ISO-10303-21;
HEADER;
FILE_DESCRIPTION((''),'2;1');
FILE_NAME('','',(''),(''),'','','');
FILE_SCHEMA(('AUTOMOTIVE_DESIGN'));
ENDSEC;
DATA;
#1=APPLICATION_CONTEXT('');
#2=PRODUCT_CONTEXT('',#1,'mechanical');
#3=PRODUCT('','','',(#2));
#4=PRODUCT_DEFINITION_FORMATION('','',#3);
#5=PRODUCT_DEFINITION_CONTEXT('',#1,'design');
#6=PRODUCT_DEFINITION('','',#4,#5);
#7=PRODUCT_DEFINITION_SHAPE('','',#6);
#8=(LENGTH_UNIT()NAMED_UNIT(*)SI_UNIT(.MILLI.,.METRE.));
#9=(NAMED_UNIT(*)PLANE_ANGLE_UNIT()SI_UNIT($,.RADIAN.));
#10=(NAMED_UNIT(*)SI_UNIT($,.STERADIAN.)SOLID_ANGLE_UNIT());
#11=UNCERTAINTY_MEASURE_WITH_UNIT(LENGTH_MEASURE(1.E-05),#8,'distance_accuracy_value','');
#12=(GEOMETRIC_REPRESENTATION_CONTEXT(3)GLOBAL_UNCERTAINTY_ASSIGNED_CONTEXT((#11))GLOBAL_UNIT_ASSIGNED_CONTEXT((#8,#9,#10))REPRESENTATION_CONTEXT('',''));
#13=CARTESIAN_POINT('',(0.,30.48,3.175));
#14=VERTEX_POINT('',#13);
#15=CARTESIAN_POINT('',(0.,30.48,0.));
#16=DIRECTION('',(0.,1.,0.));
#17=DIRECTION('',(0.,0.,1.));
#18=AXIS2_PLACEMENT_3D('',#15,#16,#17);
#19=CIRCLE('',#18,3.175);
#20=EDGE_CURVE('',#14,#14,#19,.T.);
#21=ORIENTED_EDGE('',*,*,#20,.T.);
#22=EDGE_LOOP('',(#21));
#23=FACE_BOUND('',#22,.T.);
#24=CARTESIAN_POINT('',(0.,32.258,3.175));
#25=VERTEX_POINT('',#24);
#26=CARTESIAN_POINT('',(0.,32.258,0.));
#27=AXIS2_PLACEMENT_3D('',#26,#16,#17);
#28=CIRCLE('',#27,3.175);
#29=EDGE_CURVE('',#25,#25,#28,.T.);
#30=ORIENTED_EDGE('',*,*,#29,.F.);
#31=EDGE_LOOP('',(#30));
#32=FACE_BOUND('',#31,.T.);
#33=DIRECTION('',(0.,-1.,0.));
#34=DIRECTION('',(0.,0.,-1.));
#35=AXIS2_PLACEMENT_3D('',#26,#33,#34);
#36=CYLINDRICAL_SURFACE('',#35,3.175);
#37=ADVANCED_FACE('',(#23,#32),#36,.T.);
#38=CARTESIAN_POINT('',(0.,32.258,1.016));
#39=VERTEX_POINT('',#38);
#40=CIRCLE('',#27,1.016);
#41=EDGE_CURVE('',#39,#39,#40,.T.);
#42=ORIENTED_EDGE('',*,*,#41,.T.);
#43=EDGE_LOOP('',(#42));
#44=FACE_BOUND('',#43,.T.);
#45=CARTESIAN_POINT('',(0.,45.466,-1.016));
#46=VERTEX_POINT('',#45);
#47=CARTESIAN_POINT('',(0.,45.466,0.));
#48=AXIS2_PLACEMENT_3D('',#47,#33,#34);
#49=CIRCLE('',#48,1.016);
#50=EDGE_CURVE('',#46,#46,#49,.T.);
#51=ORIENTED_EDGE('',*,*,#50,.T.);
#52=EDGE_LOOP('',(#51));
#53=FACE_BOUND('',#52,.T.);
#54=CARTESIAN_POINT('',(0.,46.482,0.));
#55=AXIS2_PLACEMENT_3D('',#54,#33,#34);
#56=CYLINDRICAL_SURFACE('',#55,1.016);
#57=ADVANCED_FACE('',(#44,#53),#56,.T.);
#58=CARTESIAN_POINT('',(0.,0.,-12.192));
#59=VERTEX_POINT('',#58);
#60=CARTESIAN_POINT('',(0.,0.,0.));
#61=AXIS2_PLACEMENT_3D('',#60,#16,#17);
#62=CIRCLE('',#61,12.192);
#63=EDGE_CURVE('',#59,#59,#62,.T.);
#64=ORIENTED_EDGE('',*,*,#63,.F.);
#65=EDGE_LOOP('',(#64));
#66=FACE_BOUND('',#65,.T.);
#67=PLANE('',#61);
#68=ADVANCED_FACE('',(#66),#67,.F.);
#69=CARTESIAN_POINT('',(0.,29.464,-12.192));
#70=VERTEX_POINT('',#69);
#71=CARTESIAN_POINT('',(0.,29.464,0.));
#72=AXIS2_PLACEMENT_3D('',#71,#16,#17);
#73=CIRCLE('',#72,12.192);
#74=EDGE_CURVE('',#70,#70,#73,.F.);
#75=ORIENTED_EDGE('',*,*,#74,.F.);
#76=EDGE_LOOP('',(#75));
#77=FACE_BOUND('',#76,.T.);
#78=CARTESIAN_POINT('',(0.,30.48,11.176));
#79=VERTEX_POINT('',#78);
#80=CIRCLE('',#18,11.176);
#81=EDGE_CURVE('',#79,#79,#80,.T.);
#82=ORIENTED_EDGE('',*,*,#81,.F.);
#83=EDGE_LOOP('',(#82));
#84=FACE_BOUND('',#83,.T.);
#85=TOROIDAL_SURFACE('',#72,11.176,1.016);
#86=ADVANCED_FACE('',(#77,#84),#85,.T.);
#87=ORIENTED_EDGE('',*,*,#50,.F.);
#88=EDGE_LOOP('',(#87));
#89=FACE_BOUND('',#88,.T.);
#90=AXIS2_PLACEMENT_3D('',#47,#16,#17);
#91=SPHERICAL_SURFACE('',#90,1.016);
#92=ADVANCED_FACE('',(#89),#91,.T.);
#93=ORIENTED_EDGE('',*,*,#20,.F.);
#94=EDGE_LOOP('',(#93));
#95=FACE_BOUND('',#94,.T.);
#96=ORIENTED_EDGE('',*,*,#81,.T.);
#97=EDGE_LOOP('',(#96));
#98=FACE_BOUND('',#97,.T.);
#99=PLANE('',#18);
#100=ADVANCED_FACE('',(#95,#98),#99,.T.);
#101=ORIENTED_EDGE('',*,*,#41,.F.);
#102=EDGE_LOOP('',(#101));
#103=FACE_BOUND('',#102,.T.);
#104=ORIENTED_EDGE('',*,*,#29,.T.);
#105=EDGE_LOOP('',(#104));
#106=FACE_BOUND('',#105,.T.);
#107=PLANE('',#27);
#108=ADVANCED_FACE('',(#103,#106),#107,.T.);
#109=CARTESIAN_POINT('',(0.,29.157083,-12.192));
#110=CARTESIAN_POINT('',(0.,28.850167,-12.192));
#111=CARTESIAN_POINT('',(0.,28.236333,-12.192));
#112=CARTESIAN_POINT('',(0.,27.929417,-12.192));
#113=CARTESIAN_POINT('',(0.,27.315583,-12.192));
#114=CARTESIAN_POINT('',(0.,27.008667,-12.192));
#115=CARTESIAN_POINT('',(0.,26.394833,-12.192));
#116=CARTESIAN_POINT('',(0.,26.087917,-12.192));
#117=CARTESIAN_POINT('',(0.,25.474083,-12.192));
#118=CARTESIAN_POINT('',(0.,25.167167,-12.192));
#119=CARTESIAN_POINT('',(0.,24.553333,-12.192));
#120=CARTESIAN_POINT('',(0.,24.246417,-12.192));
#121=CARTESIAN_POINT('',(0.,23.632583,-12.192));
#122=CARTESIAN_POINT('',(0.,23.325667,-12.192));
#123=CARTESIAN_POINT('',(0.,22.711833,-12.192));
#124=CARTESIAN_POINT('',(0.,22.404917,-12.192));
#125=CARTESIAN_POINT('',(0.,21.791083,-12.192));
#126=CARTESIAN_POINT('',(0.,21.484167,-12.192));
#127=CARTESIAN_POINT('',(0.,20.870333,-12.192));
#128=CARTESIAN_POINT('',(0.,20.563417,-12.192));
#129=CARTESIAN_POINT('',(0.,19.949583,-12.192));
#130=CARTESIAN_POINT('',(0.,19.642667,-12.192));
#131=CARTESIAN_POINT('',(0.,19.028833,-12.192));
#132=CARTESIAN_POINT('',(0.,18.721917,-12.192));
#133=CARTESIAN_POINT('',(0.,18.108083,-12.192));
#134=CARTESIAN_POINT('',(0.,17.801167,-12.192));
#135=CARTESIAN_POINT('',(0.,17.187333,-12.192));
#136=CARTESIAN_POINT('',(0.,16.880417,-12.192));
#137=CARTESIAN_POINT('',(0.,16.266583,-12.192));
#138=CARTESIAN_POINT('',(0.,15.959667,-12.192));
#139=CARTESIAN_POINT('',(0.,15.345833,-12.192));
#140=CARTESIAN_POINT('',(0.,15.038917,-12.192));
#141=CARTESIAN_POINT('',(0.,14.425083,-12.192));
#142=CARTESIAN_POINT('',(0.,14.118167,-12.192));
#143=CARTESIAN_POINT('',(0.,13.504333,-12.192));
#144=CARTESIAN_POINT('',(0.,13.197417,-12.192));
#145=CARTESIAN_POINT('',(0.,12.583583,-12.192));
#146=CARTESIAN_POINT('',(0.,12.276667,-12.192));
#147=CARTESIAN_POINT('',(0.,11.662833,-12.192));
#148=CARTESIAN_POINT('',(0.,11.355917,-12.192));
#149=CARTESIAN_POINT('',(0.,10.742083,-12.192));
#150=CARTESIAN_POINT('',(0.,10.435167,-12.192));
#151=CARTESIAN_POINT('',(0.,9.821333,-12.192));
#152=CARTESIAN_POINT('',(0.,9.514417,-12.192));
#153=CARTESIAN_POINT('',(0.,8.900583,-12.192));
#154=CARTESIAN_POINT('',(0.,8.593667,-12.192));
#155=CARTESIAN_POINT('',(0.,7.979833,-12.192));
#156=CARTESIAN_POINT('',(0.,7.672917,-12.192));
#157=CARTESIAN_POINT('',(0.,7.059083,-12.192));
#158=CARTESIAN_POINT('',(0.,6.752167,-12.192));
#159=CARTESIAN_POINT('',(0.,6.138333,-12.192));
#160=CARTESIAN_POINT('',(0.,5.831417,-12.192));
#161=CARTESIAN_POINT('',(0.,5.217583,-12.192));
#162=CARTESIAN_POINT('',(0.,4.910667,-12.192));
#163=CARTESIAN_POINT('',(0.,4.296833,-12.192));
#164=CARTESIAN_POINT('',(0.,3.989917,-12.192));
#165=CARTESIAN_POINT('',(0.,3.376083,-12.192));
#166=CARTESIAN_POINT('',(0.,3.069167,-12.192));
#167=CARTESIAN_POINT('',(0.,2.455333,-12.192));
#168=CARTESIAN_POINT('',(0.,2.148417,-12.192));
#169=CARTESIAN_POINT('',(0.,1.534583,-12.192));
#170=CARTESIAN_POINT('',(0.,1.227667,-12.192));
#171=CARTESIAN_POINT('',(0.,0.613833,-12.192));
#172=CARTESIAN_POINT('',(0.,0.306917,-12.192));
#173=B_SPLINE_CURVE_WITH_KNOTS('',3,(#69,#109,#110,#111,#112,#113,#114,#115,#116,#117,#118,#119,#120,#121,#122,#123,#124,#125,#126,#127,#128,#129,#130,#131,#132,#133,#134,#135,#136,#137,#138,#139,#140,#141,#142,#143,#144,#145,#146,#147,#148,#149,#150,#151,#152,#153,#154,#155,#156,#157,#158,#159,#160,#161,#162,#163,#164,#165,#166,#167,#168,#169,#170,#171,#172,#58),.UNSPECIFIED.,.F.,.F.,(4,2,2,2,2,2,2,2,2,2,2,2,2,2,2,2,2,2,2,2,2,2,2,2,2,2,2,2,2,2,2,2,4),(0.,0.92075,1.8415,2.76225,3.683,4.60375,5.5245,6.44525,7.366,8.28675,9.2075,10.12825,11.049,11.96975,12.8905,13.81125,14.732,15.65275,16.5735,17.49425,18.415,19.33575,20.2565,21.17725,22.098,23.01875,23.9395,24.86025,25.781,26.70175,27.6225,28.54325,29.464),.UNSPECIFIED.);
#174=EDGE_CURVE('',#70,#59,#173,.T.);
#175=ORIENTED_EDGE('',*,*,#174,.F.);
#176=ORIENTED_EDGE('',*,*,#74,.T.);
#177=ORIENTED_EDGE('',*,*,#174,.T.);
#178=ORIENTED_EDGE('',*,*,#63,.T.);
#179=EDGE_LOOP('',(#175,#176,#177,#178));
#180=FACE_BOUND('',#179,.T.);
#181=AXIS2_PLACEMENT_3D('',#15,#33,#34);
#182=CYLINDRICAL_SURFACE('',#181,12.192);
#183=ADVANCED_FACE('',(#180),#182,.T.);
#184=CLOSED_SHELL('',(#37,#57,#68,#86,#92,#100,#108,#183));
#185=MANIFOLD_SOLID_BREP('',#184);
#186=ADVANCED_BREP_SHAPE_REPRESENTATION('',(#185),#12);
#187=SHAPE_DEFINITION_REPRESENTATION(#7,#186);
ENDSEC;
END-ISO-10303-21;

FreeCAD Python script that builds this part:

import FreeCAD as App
import Part
import Sketcher

V = App.Vector
Q = App.Units.Quantity


def edges_at(feature, points):
    """Names of the edges that pass closest to the given points."""
    edges = feature.Shape.Edges
    near = lambda p: min(range(len(edges)), key=lambda i: edges[i].distToShape(Part.Vertex(*p))[0])
    return sorted({f"Edge{near(p) + 1}" for p in points})

doc = App.newDocument("Part")
params = doc.addObject("Spreadsheet::Sheet", "Params")
for row, (alias, value) in enumerate([
    ("sketch1_diameter", "0.96 in"),
    ("pad1_length", "1.2 in"),
    ("sketch2_diameter", "0.25 in"),
    ("pad2_length", "0.07 in"),
    ("sketch3_diameter", "0.08 in"),
    ("pad3_length", "0.56 in"),
    ("fillet_radius", "0.04 in"),
    ("fillet2_radius", "0.04 in"),
], start=1):
    params.set(f"A{row}", alias)
    params.set(f"B{row}", "=" + value)
    params.setAlias(f"B{row}", alias)

body = doc.addObject("PartDesign::Body", "Body")

sketch1 = body.newObject("Sketcher::SketchObject", "Sketch")
sketch1.AttachmentSupport = (doc.getObject("XZ_Plane"), [""])
sketch1.MapMode = "FlatFace"
sketch1.addGeometry(Part.Circle(V(0, 0, 0), V(0, 0, 1), 12), False)
sketch1.addConstraint([
    Sketcher.Constraint("Coincident", 0, 3, -1, 1),
    Sketcher.Constraint("Diameter", 0, Q("0.96 in")),
])
sketch1.setExpression("Constraints[1]", "Params.sketch1_diameter")
pad1 = body.newObject("PartDesign::Pad", "Pad")
pad1.Profile = sketch1
pad1.setExpression("Length", "Params.pad1_length")
pad1.Reversed = True

sketch2 = body.newObject("Sketcher::SketchObject", "Sketch001")
sketch2.AttachmentSupport = (doc.getObject("XZ_Plane"), [""])
sketch2.MapMode = "FlatFace"
sketch2.AttachmentOffset = App.Placement(V(0, 0, -1.2 * 25.4), App.Rotation())
sketch2.addGeometry(Part.Circle(V(0, 0, 0), V(0, 0, 1), 3.2), False)
sketch2.addConstraint([
    Sketcher.Constraint("Coincident", 0, 3, -1, 1),
    Sketcher.Constraint("Diameter", 0, Q("0.25 in")),
])
sketch2.setExpression("Constraints[1]", "Params.sketch2_diameter")
pad2 = body.newObject("PartDesign::Pad", "Pad001")
pad2.Profile = sketch2
pad2.setExpression("Length", "Params.pad2_length")
pad2.Reversed = True

sketch3 = body.newObject("Sketcher::SketchObject", "Sketch002")
sketch3.AttachmentSupport = (doc.getObject("XZ_Plane"), [""])
sketch3.MapMode = "FlatFace"
sketch3.AttachmentOffset = App.Placement(V(0, 0, -1.27 * 25.4), App.Rotation())
sketch3.addGeometry(Part.Circle(V(0, 0, 0), V(0, 0, 1), 1), False)
sketch3.addConstraint([
    Sketcher.Constraint("Coincident", 0, 3, -1, 1),
    Sketcher.Constraint("Diameter", 0, Q("0.08 in")),
])
sketch3.setExpression("Constraints[1]", "Params.sketch3_diameter")
pad3 = body.newObject("PartDesign::Pad", "Pad002")
pad3.Profile = sketch3
pad3.setExpression("Length", "Params.pad3_length")
pad3.Reversed = True
doc.recompute()

fillet = body.newObject("PartDesign::Fillet", "Fillet")
fillet.Base = (pad3, edges_at(pad3, [(0, 46.482, -1.016)]))
fillet.setExpression("Radius", "Params.fillet_radius")
doc.recompute()

fillet2 = body.newObject("PartDesign::Fillet", "Fillet001")
fillet2.Base = (fillet, edges_at(fillet, [(0, 30.48, 12.192)]))
fillet2.setExpression("Radius", "Params.fillet2_radius")

doc.recompute()
